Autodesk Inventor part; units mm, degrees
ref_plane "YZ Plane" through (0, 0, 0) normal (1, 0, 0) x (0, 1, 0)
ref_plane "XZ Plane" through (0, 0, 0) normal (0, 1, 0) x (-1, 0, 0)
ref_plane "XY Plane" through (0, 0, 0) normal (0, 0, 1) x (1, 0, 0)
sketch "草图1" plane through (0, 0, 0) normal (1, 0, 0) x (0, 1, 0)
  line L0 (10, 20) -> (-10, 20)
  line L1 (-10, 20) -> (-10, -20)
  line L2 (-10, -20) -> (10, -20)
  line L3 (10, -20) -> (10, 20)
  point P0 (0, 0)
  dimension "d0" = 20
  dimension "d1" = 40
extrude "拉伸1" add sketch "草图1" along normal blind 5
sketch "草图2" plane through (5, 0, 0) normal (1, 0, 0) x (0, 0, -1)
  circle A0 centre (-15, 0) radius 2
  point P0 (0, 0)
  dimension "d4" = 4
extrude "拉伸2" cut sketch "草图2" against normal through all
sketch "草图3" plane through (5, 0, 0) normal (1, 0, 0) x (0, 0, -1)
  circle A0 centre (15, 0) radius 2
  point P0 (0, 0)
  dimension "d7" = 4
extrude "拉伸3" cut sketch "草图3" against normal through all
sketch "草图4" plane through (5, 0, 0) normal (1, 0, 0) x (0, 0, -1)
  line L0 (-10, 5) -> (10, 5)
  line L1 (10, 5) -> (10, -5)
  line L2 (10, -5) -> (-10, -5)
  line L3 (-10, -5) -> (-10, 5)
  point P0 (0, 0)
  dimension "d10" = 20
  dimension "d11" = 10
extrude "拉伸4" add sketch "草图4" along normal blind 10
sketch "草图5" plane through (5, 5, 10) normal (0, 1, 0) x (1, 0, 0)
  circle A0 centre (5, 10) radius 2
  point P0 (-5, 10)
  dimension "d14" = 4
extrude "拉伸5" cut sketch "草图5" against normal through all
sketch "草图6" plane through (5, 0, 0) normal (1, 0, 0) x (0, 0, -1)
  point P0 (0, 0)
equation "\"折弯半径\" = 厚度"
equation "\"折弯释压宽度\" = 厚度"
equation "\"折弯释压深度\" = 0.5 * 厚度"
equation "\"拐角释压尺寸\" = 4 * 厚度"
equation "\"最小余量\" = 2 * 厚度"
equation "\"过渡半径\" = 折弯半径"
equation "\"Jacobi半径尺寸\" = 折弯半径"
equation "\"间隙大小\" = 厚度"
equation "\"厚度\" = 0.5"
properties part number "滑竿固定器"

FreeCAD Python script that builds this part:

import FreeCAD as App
import Part
import Sketcher

V = App.Vector


def add_polygon(sketch, points):
    """Adds a closed chain of lines whose ends are joined by coincident constraints."""
    first, n = sketch.GeometryCount, len(points)
    for a, b in zip(points, points[1:] + points[:1]):
        sketch.addGeometry(Part.LineSegment(App.Vector(*a, 0), App.Vector(*b, 0)), False)
    for i in range(n):
        sketch.addConstraint(Sketcher.Constraint("Coincident", first + i, 2, first + (i + 1) % n, 1))

doc = App.newDocument("Part")
body = doc.addObject("PartDesign::Body", "Body")

sketch1 = doc.addObject("Sketcher::SketchObject", "Sketch")
body.addObject(sketch1)
sketch1.AttachmentSupport = (doc.YZ_Plane, [""])
sketch1.MapMode = "FlatFace"
add_polygon(sketch1, [(10, -20), (10, 20), (-10, 20), (-10, -20)])
sketch1.addConstraint(Sketcher.Constraint("Vertical", 0))
sketch1.addConstraint(Sketcher.Constraint("Horizontal", 1))
sketch1.addConstraint(Sketcher.Constraint("Vertical", 2))
sketch1.addConstraint(Sketcher.Constraint("Horizontal", 3))
sketch1.addConstraint(Sketcher.Constraint("Symmetric", 0, 2, 2, 2, -1, 1))
sketch1.addConstraint(Sketcher.Constraint("DistanceX", 1, 2, 1, 1, 20.0))
sketch1.addConstraint(Sketcher.Constraint("DistanceY", 0, 1, 0, 2, 40.0))
pad1 = doc.addObject("PartDesign::Pad", "Pad")
body.addObject(pad1)
pad1.Profile = sketch1
pad1.Length = 5

sketch2 = doc.addObject("Sketcher::SketchObject", "Sketch001")
body.addObject(sketch2)
sketch2.AttachmentSupport = (doc.YZ_Plane, [""])
sketch2.MapMode = "FlatFace"
sketch2.AttachmentOffset = App.Placement(V(0, 0, 5), App.Rotation())
sketch2.addGeometry(Part.Circle(V(0, 15, 0), V(0, 0, 1), 2), False)
sketch2.addConstraint(Sketcher.Constraint("PointOnObject", 0, 3, -2))
sketch2.addConstraint(Sketcher.Constraint("Diameter", 0, 4.0))
sketch2.addConstraint(Sketcher.Constraint("DistanceY", -1, 1, 0, 3, 15.0))
pocket1 = doc.addObject("PartDesign::Pocket", "Pocket")
body.addObject(pocket1)
pocket1.Profile = sketch2
pocket1.Type = "ThroughAll"

sketch3 = doc.addObject("Sketcher::SketchObject", "Sketch002")
body.addObject(sketch3)
sketch3.AttachmentSupport = (doc.YZ_Plane, [""])
sketch3.MapMode = "FlatFace"
sketch3.AttachmentOffset = App.Placement(V(0, 0, 5), App.Rotation())
sketch3.addGeometry(Part.Circle(V(0, -15, 0), V(0, 0, 1), 2), False)
sketch3.addConstraint(Sketcher.Constraint("PointOnObject", 0, 3, -2))
sketch3.addConstraint(Sketcher.Constraint("Diameter", 0, 4.0))
sketch3.addConstraint(Sketcher.Constraint("DistanceY", 0, 3, -1, 1, 15.0))
pocket2 = doc.addObject("PartDesign::Pocket", "Pocket001")
body.addObject(pocket2)
pocket2.Profile = sketch3
pocket2.Type = "ThroughAll"

sketch4 = doc.addObject("Sketcher::SketchObject", "Sketch003")
body.addObject(sketch4)
sketch4.AttachmentSupport = (doc.YZ_Plane, [""])
sketch4.MapMode = "FlatFace"
sketch4.AttachmentOffset = App.Placement(V(0, 0, 5), App.Rotation())
add_polygon(sketch4, [(5, -10), (5, 10), (-5, 10), (-5, -10)])
sketch4.addConstraint(Sketcher.Constraint("Vertical", 0))
sketch4.addConstraint(Sketcher.Constraint("Horizontal", 1))
sketch4.addConstraint(Sketcher.Constraint("Vertical", 2))
sketch4.addConstraint(Sketcher.Constraint("Horizontal", 3))
sketch4.addConstraint(Sketcher.Constraint("Symmetric", 0, 2, 2, 2, -1, 1))
sketch4.addConstraint(Sketcher.Constraint("DistanceX", 1, 2, 1, 1, 10.0))
sketch4.addConstraint(Sketcher.Constraint("DistanceY", 0, 1, 0, 2, 20.0))
pad2 = doc.addObject("PartDesign::Pad", "Pad001")
body.addObject(pad2)
pad2.Profile = sketch4
pad2.Length = 10

sketch5 = doc.addObject("Sketcher::SketchObject", "Sketch004")
body.addObject(sketch5)
sketch5.AttachmentSupport = (doc.XZ_Plane, [""])
sketch5.MapMode = "FlatFace"
sketch5.AttachmentOffset = App.Placement(V(0, 0, -5), App.Rotation())
sketch5.addGeometry(Part.Circle(V(10, 0, 0), V(0, 0, 1), 2), False)
sketch5.addConstraint(Sketcher.Constraint("PointOnObject", 0, 3, -1))
sketch5.addConstraint(Sketcher.Constraint("Diameter", 0, 4.0))
sketch5.addConstraint(Sketcher.Constraint("DistanceX", -1, 1, 0, 3, 10.0))
pocket3 = doc.addObject("PartDesign::Pocket", "Pocket002")
body.addObject(pocket3)
pocket3.Profile = sketch5
pocket3.Type = "ThroughAll"
pocket3.Reversed = True

doc.recompute()
